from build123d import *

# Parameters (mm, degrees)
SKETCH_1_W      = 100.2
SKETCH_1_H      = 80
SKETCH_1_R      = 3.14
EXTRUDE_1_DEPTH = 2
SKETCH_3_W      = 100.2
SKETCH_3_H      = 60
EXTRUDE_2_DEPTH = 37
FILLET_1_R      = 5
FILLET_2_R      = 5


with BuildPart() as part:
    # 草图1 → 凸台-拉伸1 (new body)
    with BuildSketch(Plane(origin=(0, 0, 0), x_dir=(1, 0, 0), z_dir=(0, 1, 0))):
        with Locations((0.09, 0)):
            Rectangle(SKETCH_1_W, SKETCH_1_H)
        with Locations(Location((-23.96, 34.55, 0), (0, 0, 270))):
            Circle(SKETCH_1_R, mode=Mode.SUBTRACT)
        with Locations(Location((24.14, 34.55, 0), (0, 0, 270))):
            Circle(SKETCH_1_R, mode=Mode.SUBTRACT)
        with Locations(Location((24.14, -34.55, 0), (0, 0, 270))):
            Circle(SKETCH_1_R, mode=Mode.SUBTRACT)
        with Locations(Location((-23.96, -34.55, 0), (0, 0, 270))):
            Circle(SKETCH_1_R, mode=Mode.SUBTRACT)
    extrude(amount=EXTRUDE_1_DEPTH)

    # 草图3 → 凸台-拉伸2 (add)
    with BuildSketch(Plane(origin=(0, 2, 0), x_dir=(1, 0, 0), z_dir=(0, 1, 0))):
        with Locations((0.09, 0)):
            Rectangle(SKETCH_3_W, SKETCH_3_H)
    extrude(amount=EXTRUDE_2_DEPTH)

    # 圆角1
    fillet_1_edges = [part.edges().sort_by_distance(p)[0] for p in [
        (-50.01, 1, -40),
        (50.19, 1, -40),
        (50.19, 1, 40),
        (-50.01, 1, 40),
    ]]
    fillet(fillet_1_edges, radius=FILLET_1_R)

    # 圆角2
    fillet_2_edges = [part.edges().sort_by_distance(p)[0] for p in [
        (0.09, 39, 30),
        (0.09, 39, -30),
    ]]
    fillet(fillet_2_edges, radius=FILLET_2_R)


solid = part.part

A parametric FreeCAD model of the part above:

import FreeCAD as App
import Part
import Sketcher
Q = App.Units.Quantity


def edges_at(feature, points):
    """Names of the edges that pass closest to the given points."""
    edges = feature.Shape.Edges
    near = lambda p: min(range(len(edges)), key=lambda i: edges[i].distToShape(Part.Vertex(*p))[0])
    return sorted({f"Edge{near(p) + 1}" for p in points})


def add_polygon(sketch, points):
    """Adds a closed chain of lines whose ends are joined by coincident constraints."""
    first, n = sketch.GeometryCount, len(points)
    for a, b in zip(points, points[1:] + points[:1]):
        sketch.addGeometry(Part.LineSegment(App.Vector(*a, 0), App.Vector(*b, 0)), False)
    for i in range(n):
        sketch.addConstraint(Sketcher.Constraint("Coincident", first + i, 2, first + (i + 1) % n, 1))

doc = App.newDocument("Part")
body = doc.addObject("PartDesign::Body", "Body")

sketch1 = body.newObject("Sketcher::SketchObject", "Sketch")
sketch1.AttachmentSupport = (doc.getObject("XZ_Plane"), [""])
sketch1.MapMode = "FlatFace"
add_polygon(sketch1, [(-50, -40), (-50, 40), (50.2, 40), (50.2, -40)])
sketch1.addGeometry(Part.Circle(App.Vector(-24, 34.5, 0), App.Vector(0, 0, 1), 3.1), False)
sketch1.addGeometry(Part.Circle(App.Vector(24.1, 34.5, 0), App.Vector(0, 0, 1), 3.1), False)
sketch1.addGeometry(Part.Circle(App.Vector(-24, -34.5, 0), App.Vector(0, 0, 1), 3.1), False)
sketch1.addGeometry(Part.Circle(App.Vector(24.1, -34.5, 0), App.Vector(0, 0, 1), 3.1), False)
sketch1.addConstraint([
    Sketcher.Constraint("Vertical", 0),
    Sketcher.Constraint("Horizontal", 1),
    Sketcher.Constraint("Vertical", 2),
    Sketcher.Constraint("Horizontal", 3),
    Sketcher.Constraint("Equal", 4, 5),
    Sketcher.Constraint("Equal", 5, 6),
    Sketcher.Constraint("Equal", 6, 7),
    Sketcher.Constraint("Symmetric", 4, 3, 6, 3, -1),
    Sketcher.Constraint("Symmetric", 5, 3, 7, 3, -1),
    Sketcher.Constraint("Horizontal", 4, 3, 5, 3),
    Sketcher.Constraint("Diameter", 4, Q("6.28 mm")),
    Sketcher.Constraint("DistanceY", 0, 1, 0, 2, Q("80 mm")),
    Sketcher.Constraint("DistanceX", 1, 1, 1, 2, Q("100.2 mm")),
    Sketcher.Constraint("DistanceY", -1, 1, 0, 2, Q("40 mm")),
    Sketcher.Constraint("DistanceX", 4, 3, 5, 3, Q("48.1 mm")),
    Sketcher.Constraint("DistanceY", 6, 3, 4, 3, Q("69.1 mm")),
    Sketcher.Constraint("DistanceX", 4, 3, -1, 1, Q("23.96 mm")),
    Sketcher.Constraint("DistanceX", 0, 2, -1, 1, Q("50.01 mm")),
])
pad1 = body.newObject("PartDesign::Pad", "Pad")
pad1.Profile = sketch1
pad1.Length = 2
pad1.Reversed = True

sketch2 = body.newObject("Sketcher::SketchObject", "Sketch001")
sketch2.AttachmentSupport = (doc.getObject("XZ_Plane"), [""])
sketch2.MapMode = "FlatFace"
sketch2.AttachmentOffset = App.Placement(App.Vector(0, 0, -2), App.Rotation())
add_polygon(sketch2, [(-50, -30), (-50, 30), (50, 30), (50, -30)])
sketch2.addConstraint([
    Sketcher.Constraint("Vertical", 0),
    Sketcher.Constraint("Horizontal", 1),
    Sketcher.Constraint("Vertical", 2),
    Sketcher.Constraint("Horizontal", 3),
    Sketcher.Constraint("DistanceY", 0, 1, 0, 2, Q("60 mm")),
    Sketcher.Constraint("DistanceX", 1, 1, 1, 2, Q("100.2 mm")),
    Sketcher.Constraint("DistanceY", -1, 1, 0, 2, Q("30 mm")),
    Sketcher.Constraint("DistanceX", 0, 2, -1, 1, Q("50.01 mm")),
])
pad2 = body.newObject("PartDesign::Pad", "Pad001")
pad2.Profile = sketch2
pad2.Length = 37
pad2.Reversed = True
doc.recompute()

fillet = body.newObject("PartDesign::Fillet", "Fillet")
fillet.Base = (pad2, edges_at(pad2, [
    (-50.01, 1, -40),
    (50.19, 1, -40),
    (50.19, 1, 40),
    (-50.01, 1, 40),
]))
fillet.Radius = 5
doc.recompute()

fillet2 = body.newObject("PartDesign::Fillet", "Fillet001")
fillet2.Base = (fillet, edges_at(fillet, [(0.09, 39, 30), (0.09, 39, -30)]))
fillet2.Radius = 5

doc.recompute()
